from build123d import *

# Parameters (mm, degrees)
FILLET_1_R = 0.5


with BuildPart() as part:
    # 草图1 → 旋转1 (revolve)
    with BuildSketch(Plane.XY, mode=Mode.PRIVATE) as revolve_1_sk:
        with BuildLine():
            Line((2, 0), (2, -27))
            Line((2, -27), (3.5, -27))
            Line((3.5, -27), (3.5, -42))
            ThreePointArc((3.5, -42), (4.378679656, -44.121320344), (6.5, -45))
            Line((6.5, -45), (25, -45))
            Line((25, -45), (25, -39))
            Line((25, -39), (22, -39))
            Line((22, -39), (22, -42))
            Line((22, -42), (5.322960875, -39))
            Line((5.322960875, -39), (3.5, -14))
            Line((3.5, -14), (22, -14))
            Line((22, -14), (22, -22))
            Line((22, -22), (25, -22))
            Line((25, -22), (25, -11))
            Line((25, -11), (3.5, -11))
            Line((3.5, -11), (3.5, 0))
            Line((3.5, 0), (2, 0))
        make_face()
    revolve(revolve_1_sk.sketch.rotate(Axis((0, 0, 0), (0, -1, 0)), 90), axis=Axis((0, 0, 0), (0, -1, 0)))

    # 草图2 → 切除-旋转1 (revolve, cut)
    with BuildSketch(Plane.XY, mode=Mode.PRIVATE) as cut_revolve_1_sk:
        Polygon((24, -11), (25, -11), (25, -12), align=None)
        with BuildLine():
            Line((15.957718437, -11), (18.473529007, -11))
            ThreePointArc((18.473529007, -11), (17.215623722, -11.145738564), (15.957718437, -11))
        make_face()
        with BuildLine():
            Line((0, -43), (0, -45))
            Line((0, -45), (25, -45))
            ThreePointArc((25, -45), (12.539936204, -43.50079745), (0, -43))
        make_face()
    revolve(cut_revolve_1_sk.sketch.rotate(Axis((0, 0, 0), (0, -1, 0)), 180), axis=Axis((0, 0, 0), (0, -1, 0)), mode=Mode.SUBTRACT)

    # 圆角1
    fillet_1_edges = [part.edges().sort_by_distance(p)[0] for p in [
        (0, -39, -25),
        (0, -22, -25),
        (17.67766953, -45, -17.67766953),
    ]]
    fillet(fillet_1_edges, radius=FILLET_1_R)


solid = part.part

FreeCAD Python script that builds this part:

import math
import FreeCAD as App
import Part
import Sketcher
Q = App.Units.Quantity


def edges_at(feature, points):
    """Names of the edges that pass closest to the given points."""
    edges = feature.Shape.Edges
    near = lambda p: min(range(len(edges)), key=lambda i: edges[i].distToShape(Part.Vertex(*p))[0])
    return sorted({f"Edge{near(p) + 1}" for p in points})

doc = App.newDocument("Part")
body = doc.addObject("PartDesign::Body", "Body")

sketch1 = body.newObject("Sketcher::SketchObject", "Sketch")
sketch1.AttachmentSupport = (doc.getObject("XY_Plane"), [""])
sketch1.MapMode = "FlatFace"
sketch1.addGeometry([
    Part.LineSegment(App.Vector(2, 0, 0), App.Vector(2, -27, 0)),
    Part.LineSegment(App.Vector(2, -27, 0), App.Vector(3.5, -27, 0)),
    Part.LineSegment(App.Vector(3.5, -27, 0), App.Vector(3.5, -42, 0)),
    Part.ArcOfCircle(Part.Circle(App.Vector(6.5, -42, 0), App.Vector(0, 0, 1), 3), math.radians(180), math.radians(270)),
    Part.LineSegment(App.Vector(6.5, -45, 0), App.Vector(25, -45, 0)),
    Part.LineSegment(App.Vector(25, -45, 0), App.Vector(25, -39, 0)),
    Part.LineSegment(App.Vector(25, -39, 0), App.Vector(22, -39, 0)),
    Part.LineSegment(App.Vector(22, -39, 0), App.Vector(22, -42, 0)),
    Part.LineSegment(App.Vector(22, -42, 0), App.Vector(5.3, -39, 0)),
    Part.LineSegment(App.Vector(5.3, -39, 0), App.Vector(3.5, -14, 0)),
    Part.LineSegment(App.Vector(3.5, -14, 0), App.Vector(22, -14, 0)),
    Part.LineSegment(App.Vector(22, -14, 0), App.Vector(22, -22, 0)),
    Part.LineSegment(App.Vector(22, -22, 0), App.Vector(25, -22, 0)),
    Part.LineSegment(App.Vector(25, -22, 0), App.Vector(25, -11, 0)),
    Part.LineSegment(App.Vector(25, -11, 0), App.Vector(3.5, -11, 0)),
    Part.LineSegment(App.Vector(3.5, -11, 0), App.Vector(3.5, 0, 0)),
    Part.LineSegment(App.Vector(3.5, 0, 0), App.Vector(2, 0, 0)),
], False)
sketch1.addConstraint([
    Sketcher.Constraint("Coincident", 0, 2, 1, 1),
    Sketcher.Constraint("Coincident", 1, 2, 2, 1),
    Sketcher.Constraint("Tangent", 2, 2, 3, 1),
    Sketcher.Constraint("Tangent", 3, 2, 4, 1),
    Sketcher.Constraint("Coincident", 4, 2, 5, 1),
    Sketcher.Constraint("Coincident", 5, 2, 6, 1),
    Sketcher.Constraint("Coincident", 6, 2, 7, 1),
    Sketcher.Constraint("Coincident", 7, 2, 8, 1),
    Sketcher.Constraint("Coincident", 8, 2, 9, 1),
    Sketcher.Constraint("Coincident", 9, 2, 10, 1),
    Sketcher.Constraint("Coincident", 10, 2, 11, 1),
    Sketcher.Constraint("Coincident", 11, 2, 12, 1),
    Sketcher.Constraint("Coincident", 12, 2, 13, 1),
    Sketcher.Constraint("Coincident", 13, 2, 14, 1),
    Sketcher.Constraint("Coincident", 14, 2, 15, 1),
    Sketcher.Constraint("Coincident", 15, 2, 16, 1),
    Sketcher.Constraint("Coincident", 16, 2, 0, 1),
    Sketcher.Constraint("Vertical", 0),
    Sketcher.Constraint("Horizontal", 1),
    Sketcher.Constraint("Vertical", 2),
    Sketcher.Constraint("Horizontal", 4),
    Sketcher.Constraint("Vertical", 5),
    Sketcher.Constraint("Horizontal", 6),
    Sketcher.Constraint("Vertical", 7),
    Sketcher.Constraint("Horizontal", 10),
    Sketcher.Constraint("Vertical", 11),
    Sketcher.Constraint("Horizontal", 12),
    Sketcher.Constraint("Vertical", 13),
    Sketcher.Constraint("Horizontal", 14),
    Sketcher.Constraint("Vertical", 15),
    Sketcher.Constraint("Horizontal", 16),
    Sketcher.Constraint("PointOnObject", 15, 2, -1),
    Sketcher.Constraint("Horizontal", 2, 2, 7, 2),
    Sketcher.Constraint("Horizontal", 6, 2, 8, 2),
    Sketcher.Constraint("Vertical", 2, 2, 9, 2),
    Sketcher.Constraint("Vertical", 7, 2, 10, 2),
    Sketcher.Constraint("Vertical", 5, 2, 12, 2),
    Sketcher.Constraint("Vertical", 9, 2, 14, 2),
    Sketcher.Constraint("Equal", 4, 10),
    Sketcher.Constraint("Equal", 12, 7),
    Sketcher.Constraint("Equal", 13, 15),
    Sketcher.Constraint("Radius", 3, Q("3 mm")),
    Sketcher.Constraint("DistanceY", 0, 2, 0, 1, Q("27 mm")),
    Sketcher.Constraint("DistanceY", 2, 2, 2, 1, Q("15 mm")),
    Sketcher.Constraint("DistanceY", 11, 2, 11, 1, Q("8 mm")),
    Sketcher.Constraint("DistanceY", 13, 1, 13, 2, Q("11 mm")),
    Sketcher.Constraint("DistanceX", 1, 1, 1, 2, Q("1.5 mm")),
    Sketcher.Constraint("DistanceX", 4, 1, 4, 2, Q("18.5 mm")),
    Sketcher.Constraint("DistanceX", -1, 1, 0, 2, Q("2 mm")),
    Sketcher.Constraint("DistanceX", -1, 1, 8, 2, Q("5.322961 mm")),
])
revolution = body.newObject("PartDesign::Revolution", "Revolution")
revolution.Profile = sketch1
revolution.ReferenceAxis = (sketch1, ["V_Axis"])
revolution.Angle = 360

sketch2 = body.newObject("Sketcher::SketchObject", "Sketch001")
sketch2.AttachmentSupport = (doc.getObject("XY_Plane"), [""])
sketch2.MapMode = "FlatFace"
sketch2.addGeometry([
    Part.LineSegment(App.Vector(25, -11, 0), App.Vector(24, -11, 0)),
    Part.LineSegment(App.Vector(24, -11, 0), App.Vector(25, -12, 0)),
    Part.LineSegment(App.Vector(25, -12, 0), App.Vector(25, -11, 0)),
    Part.LineSegment(App.Vector(18.5, -11, 0), App.Vector(16, -11, 0)),
    Part.ArcOfCircle(Part.Circle(App.Vector(17.2, -5.6, 0), App.Vector(0, 0, 1), 5.5), math.radians(-103), math.radians(-77)),
    Part.LineSegment(App.Vector(0, -43, 0), App.Vector(0, -45, 0)),
    Part.LineSegment(App.Vector(0, -45, 0), App.Vector(25, -45, 0)),
    Part.ArcOfCircle(Part.Circle(App.Vector(0, -200.2, 0), App.Vector(0, 0, 1), 157.2), math.radians(80.85), math.radians(90)),
], False)
sketch2.addConstraint([
    Sketcher.Constraint("Coincident", 0, 2, 1, 1),
    Sketcher.Constraint("Coincident", 1, 2, 2, 1),
    Sketcher.Constraint("Coincident", 2, 2, 0, 1),
    Sketcher.Constraint("Coincident", 3, 1, 4, 2),
    Sketcher.Constraint("Coincident", 4, 1, 3, 2),
    Sketcher.Constraint("Coincident", 5, 2, 6, 1),
    Sketcher.Constraint("Coincident", 6, 2, 7, 1),
    Sketcher.Constraint("Coincident", 7, 2, 5, 1),
    Sketcher.Constraint("Horizontal", 0),
    Sketcher.Constraint("Vertical", 2),
    Sketcher.Constraint("Horizontal", 3),
    Sketcher.Constraint("Vertical", 5),
    Sketcher.Constraint("Horizontal", 6),
    Sketcher.Constraint("PointOnObject", 7, 3, -2),
    Sketcher.Constraint("PointOnObject", 5, 2, -2),
    Sketcher.Constraint("Horizontal", 2, 2, 3, 1),
    Sketcher.Constraint("Vertical", 2, 2, 6, 2),
    Sketcher.Constraint("Equal", 0, 2),
    Sketcher.Constraint("DistanceX", 0, 2, 0, 1, Q("1 mm")),
    Sketcher.Constraint("DistanceX", 6, 1, 6, 2, Q("25 mm")),
    Sketcher.Constraint("DistanceY", 5, 2, 5, 1, Q("2 mm")),
    Sketcher.Constraint("DistanceY", 0, 2, -1, 1, Q("11 mm")),
    Sketcher.Constraint("DistanceY", 5, 2, -1, 1, Q("45 mm")),
    Sketcher.Constraint("Radius", 4, Q("5.501514 mm")),
    Sketcher.Constraint("DistanceX", 3, 2, 3, 1, Q("2.515811 mm")),
    Sketcher.Constraint("DistanceX", -1, 1, 3, 1, Q("18.473529 mm")),
])
groove = body.newObject("PartDesign::Groove", "Groove")
groove.Profile = sketch2
groove.ReferenceAxis = (sketch2, ["V_Axis"])
groove.Angle = 360
doc.recompute()

fillet = body.newObject("PartDesign::Fillet", "Fillet")
fillet.Base = (groove, edges_at(groove, [(0, -39, -25), (0, -22, -25), (17.678, -45, -17.678)]))
fillet.Radius = 0.5

doc.recompute()
